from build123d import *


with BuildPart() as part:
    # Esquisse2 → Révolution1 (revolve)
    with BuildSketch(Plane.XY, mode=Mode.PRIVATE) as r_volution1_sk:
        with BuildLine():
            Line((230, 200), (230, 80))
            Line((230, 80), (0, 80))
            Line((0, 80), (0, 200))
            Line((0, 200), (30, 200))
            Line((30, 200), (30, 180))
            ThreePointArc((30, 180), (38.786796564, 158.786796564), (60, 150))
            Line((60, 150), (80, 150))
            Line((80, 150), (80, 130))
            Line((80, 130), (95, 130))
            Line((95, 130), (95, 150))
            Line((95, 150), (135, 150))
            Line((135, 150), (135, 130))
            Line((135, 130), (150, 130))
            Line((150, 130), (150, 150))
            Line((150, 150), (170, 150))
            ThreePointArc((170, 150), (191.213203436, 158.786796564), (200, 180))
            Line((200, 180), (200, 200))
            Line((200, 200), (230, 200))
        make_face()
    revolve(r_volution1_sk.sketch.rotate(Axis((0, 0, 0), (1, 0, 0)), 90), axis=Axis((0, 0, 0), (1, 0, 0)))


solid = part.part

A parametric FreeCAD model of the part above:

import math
import FreeCAD as App
import Part
import Sketcher

V = App.Vector

doc = App.newDocument("Part")
body = doc.addObject("PartDesign::Body", "Body")

sketch1 = body.newObject("Sketcher::SketchObject", "Sketch")
sketch1.AttachmentSupport = (doc.getObject("XY_Plane"), [""])
sketch1.MapMode = "FlatFace"
sketch1.addGeometry([
    Part.LineSegment(V(230, 80, 0), V(230, 200, 0)),
    Part.LineSegment(V(230, 200, 0), V(200, 200, 0)),
    Part.LineSegment(V(200, 200, 0), V(200, 180, 0)),
    Part.ArcOfCircle(Part.Circle(V(170, 180, 0), V(0, 0, 1), 30), math.radians(-90), math.radians(0)),
    Part.LineSegment(V(170, 150, 0), V(150, 150, 0)),
    Part.LineSegment(V(150, 150, 0), V(150, 130, 0)),
    Part.LineSegment(V(150, 130, 0), V(135, 130, 0)),
    Part.LineSegment(V(135, 130, 0), V(135, 150, 0)),
    Part.LineSegment(V(135, 150, 0), V(95, 150, 0)),
    Part.LineSegment(V(95, 150, 0), V(95, 130, 0)),
    Part.LineSegment(V(95, 130, 0), V(80, 130, 0)),
    Part.LineSegment(V(80, 130, 0), V(80, 150, 0)),
    Part.LineSegment(V(80, 150, 0), V(60, 150, 0)),
    Part.ArcOfCircle(Part.Circle(V(60, 180, 0), V(0, 0, 1), 30), math.radians(180), math.radians(270)),
    Part.LineSegment(V(30, 180, 0), V(30, 200, 0)),
    Part.LineSegment(V(30, 200, 0), V(0, 200, 0)),
    Part.LineSegment(V(0, 200, 0), V(0, 80, 0)),
    Part.LineSegment(V(0, 80, 0), V(230, 80, 0)),
], False)
sketch1.addConstraint([
    Sketcher.Constraint("Coincident", 0, 2, 1, 1),
    Sketcher.Constraint("Coincident", 1, 2, 2, 1),
    Sketcher.Constraint("Tangent", 2, 2, 3, 2),
    Sketcher.Constraint("Tangent", 3, 1, 4, 1),
    Sketcher.Constraint("Coincident", 4, 2, 5, 1),
    Sketcher.Constraint("Coincident", 5, 2, 6, 1),
    Sketcher.Constraint("Coincident", 6, 2, 7, 1),
    Sketcher.Constraint("Coincident", 7, 2, 8, 1),
    Sketcher.Constraint("Coincident", 8, 2, 9, 1),
    Sketcher.Constraint("Coincident", 9, 2, 10, 1),
    Sketcher.Constraint("Coincident", 10, 2, 11, 1),
    Sketcher.Constraint("Coincident", 11, 2, 12, 1),
    Sketcher.Constraint("Tangent", 12, 2, 13, 2),
    Sketcher.Constraint("Tangent", 13, 1, 14, 1),
    Sketcher.Constraint("Coincident", 14, 2, 15, 1),
    Sketcher.Constraint("Coincident", 15, 2, 16, 1),
    Sketcher.Constraint("Coincident", 16, 2, 17, 1),
    Sketcher.Constraint("Coincident", 17, 2, 0, 1),
    Sketcher.Constraint("Vertical", 0),
    Sketcher.Constraint("Horizontal", 1),
    Sketcher.Constraint("Vertical", 2),
    Sketcher.Constraint("Horizontal", 4),
    Sketcher.Constraint("Vertical", 5),
    Sketcher.Constraint("Horizontal", 6),
    Sketcher.Constraint("Vertical", 7),
    Sketcher.Constraint("Horizontal", 8),
    Sketcher.Constraint("Vertical", 9),
    Sketcher.Constraint("Horizontal", 10),
    Sketcher.Constraint("Vertical", 11),
    Sketcher.Constraint("Horizontal", 12),
    Sketcher.Constraint("Vertical", 14),
    Sketcher.Constraint("Horizontal", 15),
    Sketcher.Constraint("Vertical", 16),
    Sketcher.Constraint("Horizontal", 17),
    Sketcher.Constraint("Equal", 3, 13),
    Sketcher.Constraint("PointOnObject", 15, 2, -2),
    Sketcher.Constraint("Horizontal", 3, 3, 13, 3),
    Sketcher.Constraint("Horizontal", 4, 2, 7, 2),
    Sketcher.Constraint("Horizontal", 6, 2, 9, 2),
    Sketcher.Constraint("Horizontal", 1, 2, 14, 2),
    Sketcher.Constraint("Equal", 6, 10),
    Sketcher.Constraint("Equal", 4, 12),
    Sketcher.Constraint("Equal", 1, 15),
    Sketcher.Constraint("Equal", 12, 2),
    Sketcher.Constraint("Equal", 2, 5),
    Sketcher.Constraint("Radius", 3, 30.0),
    Sketcher.Constraint("DistanceX", 1, 2, 1, 1, 30.0),
    Sketcher.Constraint("DistanceX", 4, 2, 4, 1, 20.0),
    Sketcher.Constraint("DistanceX", 6, 2, 6, 1, 15.0),
    Sketcher.Constraint("DistanceX", 8, 2, 8, 1, 40.0),
    Sketcher.Constraint("DistanceY", 0, 1, 0, 2, 120.0),
    Sketcher.Constraint("DistanceY", -1, 1, 3, 3, 180.0),
])
revolution = body.newObject("PartDesign::Revolution", "Revolution")
revolution.Profile = sketch1
revolution.ReferenceAxis = (sketch1, ["H_Axis"])
revolution.Angle = 360

doc.recompute()
